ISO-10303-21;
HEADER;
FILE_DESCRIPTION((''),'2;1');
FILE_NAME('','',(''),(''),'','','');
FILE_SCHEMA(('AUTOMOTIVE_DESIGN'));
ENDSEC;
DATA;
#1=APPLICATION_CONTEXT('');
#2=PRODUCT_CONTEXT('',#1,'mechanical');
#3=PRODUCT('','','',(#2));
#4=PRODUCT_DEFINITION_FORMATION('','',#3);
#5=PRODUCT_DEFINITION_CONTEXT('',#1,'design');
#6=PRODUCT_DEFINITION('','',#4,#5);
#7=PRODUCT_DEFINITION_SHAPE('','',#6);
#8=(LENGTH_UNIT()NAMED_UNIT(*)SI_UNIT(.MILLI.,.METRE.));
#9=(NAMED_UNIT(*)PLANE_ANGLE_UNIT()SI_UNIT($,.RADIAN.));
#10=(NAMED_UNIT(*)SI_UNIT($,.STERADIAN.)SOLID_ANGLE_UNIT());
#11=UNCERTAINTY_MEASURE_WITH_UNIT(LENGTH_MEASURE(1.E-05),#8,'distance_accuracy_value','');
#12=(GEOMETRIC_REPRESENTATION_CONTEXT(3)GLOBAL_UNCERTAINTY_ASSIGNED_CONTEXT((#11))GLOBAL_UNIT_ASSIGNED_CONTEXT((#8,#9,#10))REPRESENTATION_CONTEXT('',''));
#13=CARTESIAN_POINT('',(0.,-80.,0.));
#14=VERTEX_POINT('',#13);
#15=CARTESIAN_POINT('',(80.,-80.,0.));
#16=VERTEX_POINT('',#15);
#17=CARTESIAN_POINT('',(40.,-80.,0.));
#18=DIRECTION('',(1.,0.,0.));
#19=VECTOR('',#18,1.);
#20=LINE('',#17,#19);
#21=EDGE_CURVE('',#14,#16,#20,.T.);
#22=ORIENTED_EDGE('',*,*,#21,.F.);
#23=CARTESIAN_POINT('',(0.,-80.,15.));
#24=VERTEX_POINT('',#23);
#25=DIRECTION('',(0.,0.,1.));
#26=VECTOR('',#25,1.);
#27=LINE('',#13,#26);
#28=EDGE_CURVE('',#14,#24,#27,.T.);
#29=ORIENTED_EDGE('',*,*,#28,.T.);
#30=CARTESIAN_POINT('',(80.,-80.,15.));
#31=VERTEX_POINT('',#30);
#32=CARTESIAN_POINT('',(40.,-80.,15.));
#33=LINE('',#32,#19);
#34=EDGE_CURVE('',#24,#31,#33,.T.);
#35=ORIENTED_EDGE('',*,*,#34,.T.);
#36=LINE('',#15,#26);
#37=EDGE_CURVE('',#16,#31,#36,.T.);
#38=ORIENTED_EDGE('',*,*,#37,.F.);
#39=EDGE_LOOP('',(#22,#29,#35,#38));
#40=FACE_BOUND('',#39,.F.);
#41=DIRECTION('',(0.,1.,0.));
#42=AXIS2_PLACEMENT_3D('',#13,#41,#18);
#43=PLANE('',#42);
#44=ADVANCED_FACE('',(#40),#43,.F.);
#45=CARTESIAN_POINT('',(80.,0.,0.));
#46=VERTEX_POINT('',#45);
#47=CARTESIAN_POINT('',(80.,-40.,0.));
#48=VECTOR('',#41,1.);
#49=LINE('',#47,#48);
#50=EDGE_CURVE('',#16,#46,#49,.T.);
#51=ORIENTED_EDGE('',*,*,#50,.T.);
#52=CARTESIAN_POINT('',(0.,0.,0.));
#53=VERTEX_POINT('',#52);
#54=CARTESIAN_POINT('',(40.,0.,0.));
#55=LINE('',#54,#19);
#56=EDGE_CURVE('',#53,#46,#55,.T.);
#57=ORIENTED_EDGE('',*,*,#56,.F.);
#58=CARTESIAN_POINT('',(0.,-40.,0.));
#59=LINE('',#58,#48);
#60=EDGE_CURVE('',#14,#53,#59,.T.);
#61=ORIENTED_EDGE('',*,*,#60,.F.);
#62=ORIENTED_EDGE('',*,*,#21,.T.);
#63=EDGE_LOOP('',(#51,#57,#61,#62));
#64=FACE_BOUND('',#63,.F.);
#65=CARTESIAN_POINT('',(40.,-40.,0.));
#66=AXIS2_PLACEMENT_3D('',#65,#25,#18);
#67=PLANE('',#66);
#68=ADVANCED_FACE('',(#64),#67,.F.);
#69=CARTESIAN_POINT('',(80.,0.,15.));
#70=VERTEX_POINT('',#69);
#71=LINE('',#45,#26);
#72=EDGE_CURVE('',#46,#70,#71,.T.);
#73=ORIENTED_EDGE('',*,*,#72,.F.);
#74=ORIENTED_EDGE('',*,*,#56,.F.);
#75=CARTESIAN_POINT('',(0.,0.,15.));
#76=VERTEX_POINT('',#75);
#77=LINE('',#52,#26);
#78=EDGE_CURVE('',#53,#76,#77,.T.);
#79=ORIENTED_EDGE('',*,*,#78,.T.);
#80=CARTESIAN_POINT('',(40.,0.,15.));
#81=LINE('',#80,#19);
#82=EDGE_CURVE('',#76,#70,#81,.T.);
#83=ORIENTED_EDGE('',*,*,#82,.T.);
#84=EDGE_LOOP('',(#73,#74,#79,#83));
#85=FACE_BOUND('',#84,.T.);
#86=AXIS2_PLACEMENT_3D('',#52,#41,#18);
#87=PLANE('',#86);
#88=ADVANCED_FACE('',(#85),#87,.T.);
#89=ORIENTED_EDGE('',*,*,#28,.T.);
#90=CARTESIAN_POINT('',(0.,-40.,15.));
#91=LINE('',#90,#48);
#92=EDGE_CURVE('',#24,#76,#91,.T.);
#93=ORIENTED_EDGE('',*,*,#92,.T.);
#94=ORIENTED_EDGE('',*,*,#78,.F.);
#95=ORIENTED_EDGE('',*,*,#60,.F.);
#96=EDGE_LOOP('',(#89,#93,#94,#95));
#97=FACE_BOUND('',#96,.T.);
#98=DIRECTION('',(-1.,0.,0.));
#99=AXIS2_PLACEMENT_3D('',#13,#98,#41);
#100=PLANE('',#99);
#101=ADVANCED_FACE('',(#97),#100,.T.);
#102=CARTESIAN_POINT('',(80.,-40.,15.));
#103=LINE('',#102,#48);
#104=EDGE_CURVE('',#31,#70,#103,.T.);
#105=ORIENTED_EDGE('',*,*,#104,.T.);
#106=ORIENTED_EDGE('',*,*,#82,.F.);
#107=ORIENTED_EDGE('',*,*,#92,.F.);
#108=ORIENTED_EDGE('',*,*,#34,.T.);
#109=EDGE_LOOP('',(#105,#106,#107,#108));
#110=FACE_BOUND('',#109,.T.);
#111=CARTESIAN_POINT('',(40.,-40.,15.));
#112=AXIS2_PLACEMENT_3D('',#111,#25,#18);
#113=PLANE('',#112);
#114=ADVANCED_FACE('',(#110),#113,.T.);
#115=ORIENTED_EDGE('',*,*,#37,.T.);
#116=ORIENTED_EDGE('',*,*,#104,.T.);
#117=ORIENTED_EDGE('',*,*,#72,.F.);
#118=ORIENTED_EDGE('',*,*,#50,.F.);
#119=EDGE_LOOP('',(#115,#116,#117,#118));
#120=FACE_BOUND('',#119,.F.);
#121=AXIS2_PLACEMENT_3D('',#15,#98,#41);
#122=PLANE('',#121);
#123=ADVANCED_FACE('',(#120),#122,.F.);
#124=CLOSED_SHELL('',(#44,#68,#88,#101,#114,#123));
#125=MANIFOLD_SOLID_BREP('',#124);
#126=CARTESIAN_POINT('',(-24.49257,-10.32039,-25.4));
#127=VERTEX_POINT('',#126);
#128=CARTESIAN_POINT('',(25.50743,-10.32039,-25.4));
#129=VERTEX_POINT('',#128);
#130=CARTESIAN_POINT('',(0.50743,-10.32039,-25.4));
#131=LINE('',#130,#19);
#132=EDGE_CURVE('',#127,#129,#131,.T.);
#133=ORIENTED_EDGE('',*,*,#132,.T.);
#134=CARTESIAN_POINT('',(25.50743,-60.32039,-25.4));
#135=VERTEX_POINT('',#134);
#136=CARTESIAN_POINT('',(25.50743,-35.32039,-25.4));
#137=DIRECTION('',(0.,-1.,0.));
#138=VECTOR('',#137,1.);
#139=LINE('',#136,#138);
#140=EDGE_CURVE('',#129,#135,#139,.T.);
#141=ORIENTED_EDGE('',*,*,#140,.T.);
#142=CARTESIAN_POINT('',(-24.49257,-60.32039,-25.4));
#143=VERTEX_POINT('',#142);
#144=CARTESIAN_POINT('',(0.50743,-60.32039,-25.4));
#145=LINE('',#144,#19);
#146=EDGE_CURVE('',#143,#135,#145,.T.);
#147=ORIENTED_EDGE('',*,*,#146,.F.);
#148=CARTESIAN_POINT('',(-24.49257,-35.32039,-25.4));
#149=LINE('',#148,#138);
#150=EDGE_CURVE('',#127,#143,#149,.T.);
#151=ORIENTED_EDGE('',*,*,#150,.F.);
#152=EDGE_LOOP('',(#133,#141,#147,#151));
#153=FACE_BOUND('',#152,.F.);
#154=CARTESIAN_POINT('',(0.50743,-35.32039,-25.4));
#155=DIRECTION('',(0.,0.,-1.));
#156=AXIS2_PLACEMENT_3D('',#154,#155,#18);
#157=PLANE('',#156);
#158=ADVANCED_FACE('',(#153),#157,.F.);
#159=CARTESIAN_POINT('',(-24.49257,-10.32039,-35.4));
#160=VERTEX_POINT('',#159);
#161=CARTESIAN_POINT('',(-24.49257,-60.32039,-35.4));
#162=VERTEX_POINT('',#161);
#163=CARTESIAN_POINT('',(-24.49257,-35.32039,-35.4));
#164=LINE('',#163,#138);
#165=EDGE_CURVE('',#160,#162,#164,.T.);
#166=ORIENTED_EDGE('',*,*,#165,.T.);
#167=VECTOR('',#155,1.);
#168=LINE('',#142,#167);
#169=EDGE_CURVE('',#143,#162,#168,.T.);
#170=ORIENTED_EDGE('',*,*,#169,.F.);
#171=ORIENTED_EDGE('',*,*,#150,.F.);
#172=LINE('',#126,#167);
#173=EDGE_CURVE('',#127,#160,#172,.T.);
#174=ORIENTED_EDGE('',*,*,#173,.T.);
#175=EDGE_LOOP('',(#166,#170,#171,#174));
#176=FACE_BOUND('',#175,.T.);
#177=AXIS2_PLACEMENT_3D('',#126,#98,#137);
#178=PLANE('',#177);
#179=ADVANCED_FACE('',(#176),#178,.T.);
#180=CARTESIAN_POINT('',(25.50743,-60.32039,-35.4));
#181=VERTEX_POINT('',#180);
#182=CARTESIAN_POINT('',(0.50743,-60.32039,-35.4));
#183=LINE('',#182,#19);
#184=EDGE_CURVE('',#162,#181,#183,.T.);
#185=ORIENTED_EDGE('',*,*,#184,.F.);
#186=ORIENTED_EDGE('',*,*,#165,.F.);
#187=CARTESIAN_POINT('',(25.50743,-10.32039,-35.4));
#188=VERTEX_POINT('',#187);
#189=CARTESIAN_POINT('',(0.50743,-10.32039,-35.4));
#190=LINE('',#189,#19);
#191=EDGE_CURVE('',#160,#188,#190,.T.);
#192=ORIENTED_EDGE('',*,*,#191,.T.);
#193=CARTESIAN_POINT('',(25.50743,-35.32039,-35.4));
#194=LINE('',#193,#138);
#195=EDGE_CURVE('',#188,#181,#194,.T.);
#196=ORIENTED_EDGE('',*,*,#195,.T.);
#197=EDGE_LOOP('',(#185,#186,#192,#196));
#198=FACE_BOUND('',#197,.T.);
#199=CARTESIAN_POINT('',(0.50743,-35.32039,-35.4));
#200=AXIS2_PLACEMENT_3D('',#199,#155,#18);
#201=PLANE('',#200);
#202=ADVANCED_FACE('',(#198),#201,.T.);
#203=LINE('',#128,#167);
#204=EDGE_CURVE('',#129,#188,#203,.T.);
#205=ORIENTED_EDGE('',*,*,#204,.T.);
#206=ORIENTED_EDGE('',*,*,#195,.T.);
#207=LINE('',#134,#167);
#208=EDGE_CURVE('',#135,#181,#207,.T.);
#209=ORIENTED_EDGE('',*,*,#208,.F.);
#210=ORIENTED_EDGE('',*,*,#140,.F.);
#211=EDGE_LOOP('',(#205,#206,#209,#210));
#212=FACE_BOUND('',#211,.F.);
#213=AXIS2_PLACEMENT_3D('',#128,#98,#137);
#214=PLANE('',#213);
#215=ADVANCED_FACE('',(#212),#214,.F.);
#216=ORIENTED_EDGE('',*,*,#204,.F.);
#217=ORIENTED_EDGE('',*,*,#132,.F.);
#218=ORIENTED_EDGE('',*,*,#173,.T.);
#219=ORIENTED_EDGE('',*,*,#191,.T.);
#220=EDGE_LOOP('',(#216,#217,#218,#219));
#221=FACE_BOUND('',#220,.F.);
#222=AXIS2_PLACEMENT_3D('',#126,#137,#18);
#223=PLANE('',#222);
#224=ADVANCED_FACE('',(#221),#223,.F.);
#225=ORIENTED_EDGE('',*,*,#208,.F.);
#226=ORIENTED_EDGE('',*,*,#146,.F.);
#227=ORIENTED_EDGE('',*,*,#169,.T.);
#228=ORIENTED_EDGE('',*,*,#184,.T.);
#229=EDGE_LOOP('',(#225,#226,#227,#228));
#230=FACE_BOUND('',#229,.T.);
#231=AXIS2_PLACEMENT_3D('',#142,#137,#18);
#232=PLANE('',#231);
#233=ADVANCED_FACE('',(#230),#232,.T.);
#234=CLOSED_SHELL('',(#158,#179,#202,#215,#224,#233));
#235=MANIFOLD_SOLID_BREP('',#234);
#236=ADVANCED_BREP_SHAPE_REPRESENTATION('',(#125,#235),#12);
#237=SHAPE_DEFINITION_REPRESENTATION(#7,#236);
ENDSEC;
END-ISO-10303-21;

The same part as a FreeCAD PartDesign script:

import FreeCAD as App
import Part
import Sketcher
from FreeCAD import Vector


def add_polygon(sketch, points):
    """Adds a closed chain of lines whose ends are joined by coincident constraints."""
    first, n = sketch.GeometryCount, len(points)
    for a, b in zip(points, points[1:] + points[:1]):
        sketch.addGeometry(Part.LineSegment(App.Vector(*a, 0), App.Vector(*b, 0)), False)
    for i in range(n):
        sketch.addConstraint(Sketcher.Constraint("Coincident", first + i, 2, first + (i + 1) % n, 1))

doc = App.newDocument("Part")
params = doc.addObject("Spreadsheet::Sheet", "Params")
for row, (alias, value) in enumerate([
    ("sketch1_width", "80 mm"),
    ("pad1_length", "15 mm"),
    ("sketch2_width", "50 mm"),
    ("pad2_length", "10 mm"),
], start=1):
    params.set(f"A{row}", alias)
    params.set(f"B{row}", "=" + value)
    params.setAlias(f"B{row}", alias)

body = doc.addObject("PartDesign::Body", "Body")

# Sketch on XY plane
sketch1 = doc.addObject("Sketcher::SketchObject", "Sketch")
body.addObject(sketch1)
sketch1.AttachmentSupport = (doc.XY_Plane, [""])
sketch1.MapMode = "FlatFace"
add_polygon(sketch1, [(0, 0), (0, -80), (80, -80), (80, 0)])  # lines 0-3
sketch1.addConstraint(Sketcher.Constraint("Vertical", 0))
sketch1.addConstraint(Sketcher.Constraint("Horizontal", 1))
sketch1.addConstraint(Sketcher.Constraint("Vertical", 2))
sketch1.addConstraint(Sketcher.Constraint("Horizontal", 3))
sketch1.addConstraint(Sketcher.Constraint("Coincident", 3, 2, -1, 1))
sketch1.addConstraint(Sketcher.Constraint("Equal", 3, 0))
sketch1.addConstraint(Sketcher.Constraint("DistanceX", 1, 1, 1, 2, 80.0))
sketch1.setExpression("Constraints[10]", "Params.sketch1_width")
pad1 = doc.addObject("PartDesign::Pad", "Pad")
body.addObject(pad1)
pad1.Profile = sketch1
pad1.setExpression("Length", "Params.pad1_length")
body2 = doc.addObject("PartDesign::Body", "Body001")

# Sketch on XY plane
sketch2 = doc.addObject("Sketcher::SketchObject", "Sketch001")
body2.addObject(sketch2)
sketch2.AttachmentSupport = (doc.getObject("XY_Plane001"), [""])
sketch2.MapMode = "FlatFace"
sketch2.AttachmentOffset = App.Placement(Vector(0, 0, -25.4), App.Rotation())
add_polygon(sketch2, [(-24.49257, -60.32039), (-24.49257, -10.32039), (25.50743, -10.32039), (25.50743, -60.32039)])  # lines 0-3
sketch2.addConstraint(Sketcher.Constraint("Vertical", 0))
sketch2.addConstraint(Sketcher.Constraint("Horizontal", 1))
sketch2.addConstraint(Sketcher.Constraint("Vertical", 2))
sketch2.addConstraint(Sketcher.Constraint("Horizontal", 3))
sketch2.addConstraint(Sketcher.Constraint("Equal", 3, 0))
sketch2.addConstraint(Sketcher.Constraint("DistanceX", 1, 1, 1, 2, 50.0))
sketch2.addConstraint(Sketcher.Constraint("DistanceX", 0, 2, -1, 1, 24.49257))
sketch2.addConstraint(Sketcher.Constraint("DistanceY", 0, 2, -1, 1, 10.32039))
sketch2.setExpression("Constraints[9]", "Params.sketch2_width")
pad2 = doc.addObject("PartDesign::Pad", "Pad001")
body2.addObject(pad2)
pad2.Profile = sketch2
pad2.setExpression("Length", "Params.pad2_length")
pad2.Reversed = True

doc.recompute()
